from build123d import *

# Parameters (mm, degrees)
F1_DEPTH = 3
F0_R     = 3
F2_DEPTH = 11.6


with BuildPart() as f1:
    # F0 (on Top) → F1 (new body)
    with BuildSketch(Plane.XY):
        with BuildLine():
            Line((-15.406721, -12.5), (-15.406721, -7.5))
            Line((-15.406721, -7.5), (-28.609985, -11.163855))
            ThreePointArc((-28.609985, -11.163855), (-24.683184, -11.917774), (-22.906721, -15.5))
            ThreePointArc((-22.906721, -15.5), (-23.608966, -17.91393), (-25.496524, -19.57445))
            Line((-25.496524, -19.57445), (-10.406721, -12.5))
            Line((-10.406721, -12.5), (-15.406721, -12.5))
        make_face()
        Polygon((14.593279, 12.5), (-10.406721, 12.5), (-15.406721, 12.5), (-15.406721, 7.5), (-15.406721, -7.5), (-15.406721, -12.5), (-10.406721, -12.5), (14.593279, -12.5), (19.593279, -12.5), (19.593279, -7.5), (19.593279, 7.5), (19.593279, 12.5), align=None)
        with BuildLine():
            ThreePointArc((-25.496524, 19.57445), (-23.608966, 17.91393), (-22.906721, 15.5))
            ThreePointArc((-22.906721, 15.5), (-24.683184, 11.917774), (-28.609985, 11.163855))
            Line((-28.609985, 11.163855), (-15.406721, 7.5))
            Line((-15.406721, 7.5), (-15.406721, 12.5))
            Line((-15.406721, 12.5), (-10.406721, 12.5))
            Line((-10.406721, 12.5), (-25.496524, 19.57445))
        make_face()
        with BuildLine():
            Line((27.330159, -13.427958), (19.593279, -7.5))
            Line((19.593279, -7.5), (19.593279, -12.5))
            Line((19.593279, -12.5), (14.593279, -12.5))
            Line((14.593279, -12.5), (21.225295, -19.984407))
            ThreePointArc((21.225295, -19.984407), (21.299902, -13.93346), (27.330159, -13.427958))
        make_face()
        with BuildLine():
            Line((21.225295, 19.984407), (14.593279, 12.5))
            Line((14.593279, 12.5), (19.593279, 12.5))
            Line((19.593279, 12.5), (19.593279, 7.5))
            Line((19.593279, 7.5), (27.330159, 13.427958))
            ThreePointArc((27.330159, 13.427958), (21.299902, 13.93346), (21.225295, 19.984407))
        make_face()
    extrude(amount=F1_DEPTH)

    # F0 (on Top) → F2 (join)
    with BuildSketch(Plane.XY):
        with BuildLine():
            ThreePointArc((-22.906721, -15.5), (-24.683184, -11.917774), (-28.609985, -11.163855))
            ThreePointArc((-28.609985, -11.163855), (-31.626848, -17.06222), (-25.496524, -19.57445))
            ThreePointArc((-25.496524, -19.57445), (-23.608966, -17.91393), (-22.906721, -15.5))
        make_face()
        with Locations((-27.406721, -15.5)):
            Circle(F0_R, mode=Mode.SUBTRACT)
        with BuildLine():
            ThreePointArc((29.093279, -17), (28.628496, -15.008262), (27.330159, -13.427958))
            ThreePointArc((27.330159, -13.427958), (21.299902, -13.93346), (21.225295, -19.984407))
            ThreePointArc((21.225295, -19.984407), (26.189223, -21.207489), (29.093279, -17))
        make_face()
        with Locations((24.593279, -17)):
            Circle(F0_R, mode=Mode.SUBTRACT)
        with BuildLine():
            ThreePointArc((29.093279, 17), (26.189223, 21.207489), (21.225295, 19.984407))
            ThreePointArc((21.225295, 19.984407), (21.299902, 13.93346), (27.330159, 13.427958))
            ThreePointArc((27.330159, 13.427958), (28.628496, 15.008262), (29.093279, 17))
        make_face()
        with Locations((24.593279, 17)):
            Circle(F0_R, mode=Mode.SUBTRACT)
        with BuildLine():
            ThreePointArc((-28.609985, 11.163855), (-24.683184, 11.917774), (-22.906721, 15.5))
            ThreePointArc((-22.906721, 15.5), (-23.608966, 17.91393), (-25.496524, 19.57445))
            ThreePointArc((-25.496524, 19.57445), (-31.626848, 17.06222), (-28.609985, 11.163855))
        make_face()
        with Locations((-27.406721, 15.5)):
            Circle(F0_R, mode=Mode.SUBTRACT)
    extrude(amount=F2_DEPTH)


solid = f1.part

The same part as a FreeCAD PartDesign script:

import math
import FreeCAD as App
import Part
import Sketcher
Q = App.Units.Quantity

doc = App.newDocument("Part")
body = doc.addObject("PartDesign::Body", "Body")

# Sketch on XY plane
sketch1 = body.newObject("Sketcher::SketchObject", "Sketch")
sketch1.AttachmentSupport = (doc.getObject("XY_Plane"), [""])
sketch1.MapMode = "FlatFace"
sketch1.addGeometry([
    Part.LineSegment(App.Vector(-15.4, -7.5, 0), App.Vector(-28.6, -11.2, 0)),  # 0
    Part.ArcOfCircle(Part.Circle(App.Vector(-27.4, -15.5, 0), App.Vector(0, 0, 1), 4.5), math.radians(0), math.radians(106)),  # 1
    Part.ArcOfCircle(Part.Circle(App.Vector(-27.4, -15.5, 0), App.Vector(0, 0, 1), 4.5), math.radians(-65), math.radians(0)),  # 2
    Part.LineSegment(App.Vector(-25.5, -19.6, 0), App.Vector(-10.4, -12.5, 0)),  # 3
    Part.LineSegment(App.Vector(-10.4, -12.5, 0), App.Vector(14.6, -12.5, 0)),  # 4
    Part.LineSegment(App.Vector(14.6, -12.5, 0), App.Vector(21.2, -20, 0)),  # 5
    Part.ArcOfCircle(Part.Circle(App.Vector(24.6, -17, 0), App.Vector(0, 0, 1), 4.5), math.radians(53), math.radians(222)),  # 6
    Part.LineSegment(App.Vector(27.3, -13.4, 0), App.Vector(19.6, -7.5, 0)),  # 7
    Part.LineSegment(App.Vector(19.6, -7.5, 0), App.Vector(19.6, 7.5, 0)),  # 8
    Part.LineSegment(App.Vector(19.6, 7.5, 0), App.Vector(27.3, 13.4, 0)),  # 9
    Part.ArcOfCircle(Part.Circle(App.Vector(24.6, 17, 0), App.Vector(0, 0, 1), 4.5), math.radians(138), math.radians(307)),  # 10
    Part.LineSegment(App.Vector(21.2, 20, 0), App.Vector(14.6, 12.5, 0)),  # 11
    Part.LineSegment(App.Vector(14.6, 12.5, 0), App.Vector(-10.4, 12.5, 0)),  # 12
    Part.LineSegment(App.Vector(-10.4, 12.5, 0), App.Vector(-25.5, 19.6, 0)),  # 13
    Part.ArcOfCircle(Part.Circle(App.Vector(-27.4, 15.5, 0), App.Vector(0, 0, 1), 4.5), math.radians(0), math.radians(65)),  # 14
    Part.ArcOfCircle(Part.Circle(App.Vector(-27.4, 15.5, 0), App.Vector(0, 0, 1), 4.5), math.radians(-106), math.radians(0)),  # 15
    Part.LineSegment(App.Vector(-28.6, 11.2, 0), App.Vector(-15.4, 7.5, 0)),  # 16
    Part.LineSegment(App.Vector(-15.4, 7.5, 0), App.Vector(-15.4, -7.5, 0)),  # 17
], False)
sketch1.addConstraint([
    Sketcher.Constraint("Tangent", 0, 2, 1, 2),
    Sketcher.Constraint("Tangent", 1, 1, 2, 2),
    Sketcher.Constraint("Tangent", 2, 1, 3, 1),
    Sketcher.Constraint("Coincident", 3, 2, 4, 1),
    Sketcher.Constraint("Coincident", 4, 2, 5, 1),
    Sketcher.Constraint("Tangent", 5, 2, 6, 2),
    Sketcher.Constraint("Tangent", 6, 1, 7, 1),
    Sketcher.Constraint("Coincident", 7, 2, 8, 1),
    Sketcher.Constraint("Coincident", 8, 2, 9, 1),
    Sketcher.Constraint("Tangent", 9, 2, 10, 2),
    Sketcher.Constraint("Tangent", 10, 1, 11, 1),
    Sketcher.Constraint("Coincident", 11, 2, 12, 1),
    Sketcher.Constraint("Coincident", 12, 2, 13, 1),
    Sketcher.Constraint("Tangent", 13, 2, 14, 2),
    Sketcher.Constraint("Tangent", 14, 1, 15, 2),
    Sketcher.Constraint("Tangent", 15, 1, 16, 1),
    Sketcher.Constraint("Coincident", 16, 2, 17, 1),
    Sketcher.Constraint("Coincident", 17, 2, 0, 1),
    Sketcher.Constraint("Horizontal", 4),
    Sketcher.Constraint("Vertical", 8),
    Sketcher.Constraint("Horizontal", 12),
    Sketcher.Constraint("Vertical", 17),
    Sketcher.Constraint("Equal", 1, 6),
    Sketcher.Constraint("Equal", 6, 10),
    Sketcher.Constraint("Equal", 2, 14),
    Sketcher.Constraint("Equal", 10, 15),
    Sketcher.Constraint("Symmetric", 6, 3, 10, 3, -1),
    Sketcher.Constraint("Symmetric", 1, 3, 14, 3, -1),
    Sketcher.Constraint("Symmetric", 4, 2, 11, 2, -1),
    Sketcher.Constraint("Symmetric", 2, 1, 13, 2, -1),
    Sketcher.Constraint("Horizontal", 2, 3, 1, 1),
    Sketcher.Constraint("Horizontal", 15, 3, 14, 1),
    Sketcher.Constraint("Horizontal", 8, 2, 16, 2),
    Sketcher.Constraint("Horizontal", 7, 2, 17, 2),
    Sketcher.Constraint("Vertical", 6, 1, 9, 2),
    Sketcher.Constraint("Radius", 1, Q("4.5 mm")),
    Sketcher.Constraint("DistanceX", 4, 1, 4, 2, Q("25 mm")),
    Sketcher.Constraint("DistanceY", 8, 1, 8, 2, Q("15 mm")),
    Sketcher.Constraint("Distance", 5, Q("9.999999 mm")),
    Sketcher.Constraint("DistanceY", 6, 3, -1, 1, Q("17 mm")),
    Sketcher.Constraint("DistanceX", 1, 3, 6, 3, Q("52 mm")),
    Sketcher.Constraint("DistanceY", 1, 3, 14, 3, Q("31.000001 mm")),
    Sketcher.Constraint("DistanceY", 1, 1, 3, 2, Q("3 mm")),
    Sketcher.Constraint("DistanceX", 4, 2, 7, 2, Q("5 mm")),
    Sketcher.Constraint("DistanceX", 16, 2, 12, 2, Q("5 mm")),
    Sketcher.Constraint("DistanceX", 1, 3, -1, 1, Q("27.406721 mm")),
])
pad1 = body.newObject("PartDesign::Pad", "Pad")
pad1.Profile = sketch1
pad1.Length = 3

# Sketch on XY plane
sketch2 = body.newObject("Sketcher::SketchObject", "Sketch001")
sketch2.AttachmentSupport = (doc.getObject("XY_Plane"), [""])
sketch2.MapMode = "FlatFace"
sketch2.addGeometry([
    Part.ArcOfCircle(Part.Circle(App.Vector(-27.4, -15.5, 0), App.Vector(0, 0, 1), 4.5), math.radians(0), math.radians(106)),  # 0
    Part.ArcOfCircle(Part.Circle(App.Vector(-27.4, -15.5, 0), App.Vector(0, 0, 1), 4.5), math.radians(106), math.radians(295)),  # 1
    Part.ArcOfCircle(Part.Circle(App.Vector(-27.4, -15.5, 0), App.Vector(0, 0, 1), 4.5), math.radians(-65), math.radians(0)),  # 2
    Part.Circle(App.Vector(-27.4, -15.5, 0), App.Vector(0, 0, 1), 3),  # 3
    Part.ArcOfCircle(Part.Circle(App.Vector(24.6, -17, 0), App.Vector(0, 0, 1), 4.5), math.radians(0), math.radians(53)),  # 4
    Part.ArcOfCircle(Part.Circle(App.Vector(24.6, -17, 0), App.Vector(0, 0, 1), 4.5), math.radians(53), math.radians(222)),  # 5
    Part.ArcOfCircle(Part.Circle(App.Vector(24.6, -17, 0), App.Vector(0, 0, 1), 4.5), math.radians(-138), math.radians(0)),  # 6
    Part.Circle(App.Vector(24.6, -17, 0), App.Vector(0, 0, 1), 3),  # 7
    Part.ArcOfCircle(Part.Circle(App.Vector(24.6, 17, 0), App.Vector(0, 0, 1), 4.5), math.radians(0), math.radians(138)),  # 8
    Part.ArcOfCircle(Part.Circle(App.Vector(24.6, 17, 0), App.Vector(0, 0, 1), 4.5), math.radians(138), math.radians(307)),  # 9
    Part.ArcOfCircle(Part.Circle(App.Vector(24.6, 17, 0), App.Vector(0, 0, 1), 4.5), math.radians(-53), math.radians(0)),  # 10
    Part.Circle(App.Vector(24.6, 17, 0), App.Vector(0, 0, 1), 3),  # 11
    Part.ArcOfCircle(Part.Circle(App.Vector(-27.4, 15.5, 0), App.Vector(0, 0, 1), 4.5), math.radians(-106), math.radians(0)),  # 12
    Part.ArcOfCircle(Part.Circle(App.Vector(-27.4, 15.5, 0), App.Vector(0, 0, 1), 4.5), math.radians(0), math.radians(65)),  # 13
    Part.ArcOfCircle(Part.Circle(App.Vector(-27.4, 15.5, 0), App.Vector(0, 0, 1), 4.5), math.radians(65), math.radians(254)),  # 14
    Part.Circle(App.Vector(-27.4, 15.5, 0), App.Vector(0, 0, 1), 3),  # 15
], False)
sketch2.addConstraint([
    Sketcher.Constraint("Tangent", 0, 2, 1, 1),
    Sketcher.Constraint("Tangent", 1, 2, 2, 1),
    Sketcher.Constraint("Tangent", 2, 2, 0, 1),
    Sketcher.Constraint("Tangent", 4, 2, 5, 1),
    Sketcher.Constraint("Tangent", 5, 2, 6, 1),
    Sketcher.Constraint("Tangent", 6, 2, 4, 1),
    Sketcher.Constraint("Tangent", 8, 2, 9, 1),
    Sketcher.Constraint("Tangent", 9, 2, 10, 1),
    Sketcher.Constraint("Tangent", 10, 2, 8, 1),
    Sketcher.Constraint("Tangent", 12, 2, 13, 1),
    Sketcher.Constraint("Tangent", 13, 2, 14, 1),
    Sketcher.Constraint("Tangent", 14, 2, 12, 1),
    Sketcher.Constraint("Coincident", 3, 3, 0, 3),
    Sketcher.Constraint("Coincident", 7, 3, 4, 3),
    Sketcher.Constraint("Coincident", 11, 3, 8, 3),
    Sketcher.Constraint("Coincident", 15, 3, 12, 3),
    Sketcher.Constraint("Equal", 1, 4),
    Sketcher.Constraint("Equal", 3, 7),
    Sketcher.Constraint("Equal", 6, 8),
    Sketcher.Constraint("Equal", 7, 11),
    Sketcher.Constraint("Equal", 10, 12),
    Sketcher.Constraint("Equal", 11, 15),
    Sketcher.Constraint("Symmetric", 4, 3, 8, 3, -1),
    Sketcher.Constraint("Symmetric", 0, 3, 12, 3, -1),
    Sketcher.Constraint("Horizontal", 3, 3, 2, 2),
    Sketcher.Constraint("Horizontal", 7, 3, 6, 2),
    Sketcher.Constraint("Horizontal", 11, 3, 10, 2),
    Sketcher.Constraint("Horizontal", 15, 3, 12, 2),
    Sketcher.Constraint("Vertical", 5, 2, 8, 2),
    Sketcher.Constraint("Vertical", 4, 2, 9, 2),
    Sketcher.Constraint("Vertical", 1, 2, 13, 2),
    Sketcher.Constraint("Vertical", 0, 2, 14, 2),
    Sketcher.Constraint("Diameter", 3, Q("6 mm")),
    Sketcher.Constraint("Radius", 0, Q("4.5 mm")),
    Sketcher.Constraint("DistanceY", 4, 3, -1, 1, Q("17.000001 mm")),
    Sketcher.Constraint("DistanceX", 3, 3, 4, 3, Q("51.999999 mm")),
    Sketcher.Constraint("DistanceY", 3, 3, 12, 3, Q("31.000001 mm")),
    Sketcher.Constraint("DistanceX", 0, 3, -1, 1, Q("27.406721 mm")),
    Sketcher.Constraint("DistanceY", 1, 2, -1, 1, Q("19.57445 mm")),
    Sketcher.Constraint("DistanceX", -1, 1, 4, 2, Q("27.330159 mm")),
    Sketcher.Constraint("DistanceX", 0, 2, 1, 2, Q("3.113461 mm")),
    Sketcher.Constraint("DistanceY", 5, 2, 4, 2, Q("6.556449 mm")),
])
pad2 = body.newObject("PartDesign::Pad", "Pad001")
pad2.Profile = sketch2
pad2.Length = 11.6

doc.recompute()
